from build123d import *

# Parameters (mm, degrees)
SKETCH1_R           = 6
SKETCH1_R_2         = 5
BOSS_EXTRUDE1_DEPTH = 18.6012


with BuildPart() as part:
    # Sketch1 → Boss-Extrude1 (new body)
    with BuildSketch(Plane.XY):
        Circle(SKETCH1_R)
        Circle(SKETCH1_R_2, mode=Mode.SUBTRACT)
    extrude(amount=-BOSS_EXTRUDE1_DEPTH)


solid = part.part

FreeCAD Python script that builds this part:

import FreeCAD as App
import Part
import Sketcher

doc = App.newDocument("Part")
params = doc.addObject("Spreadsheet::Sheet", "Params")
for row, (alias, value) in enumerate([
    ("sketch1_diameter", "12 mm"),
    ("sketch1_diameter2", "10 mm"),
    ("pad1_length", "18.6012 mm"),
], start=1):
    params.set(f"A{row}", alias)
    params.set(f"B{row}", "=" + value)
    params.setAlias(f"B{row}", alias)

body = doc.addObject("PartDesign::Body", "Body")

sketch1 = doc.addObject("Sketcher::SketchObject", "Sketch")
body.addObject(sketch1)
sketch1.AttachmentSupport = (doc.XY_Plane, [""])
sketch1.MapMode = "FlatFace"
sketch1.addGeometry(Part.Circle(App.Vector(0, 0, 0), App.Vector(0, 0, 1), 6), False)
sketch1.addGeometry(Part.Circle(App.Vector(0, 0, 0), App.Vector(0, 0, 1), 5), False)
sketch1.addConstraint(Sketcher.Constraint("Coincident", 0, 3, -1, 1))
sketch1.addConstraint(Sketcher.Constraint("Coincident", 1, 3, -1, 1))
sketch1.addConstraint(Sketcher.Constraint("Diameter", 0, 12.0))
sketch1.addConstraint(Sketcher.Constraint("Diameter", 1, 10.0))
sketch1.setExpression("Constraints[2]", "Params.sketch1_diameter")
sketch1.setExpression("Constraints[3]", "Params.sketch1_diameter2")
pad1 = doc.addObject("PartDesign::Pad", "Pad")
body.addObject(pad1)
pad1.Profile = sketch1
pad1.setExpression("Length", "Params.pad1_length")
pad1.Reversed = True

doc.recompute()
